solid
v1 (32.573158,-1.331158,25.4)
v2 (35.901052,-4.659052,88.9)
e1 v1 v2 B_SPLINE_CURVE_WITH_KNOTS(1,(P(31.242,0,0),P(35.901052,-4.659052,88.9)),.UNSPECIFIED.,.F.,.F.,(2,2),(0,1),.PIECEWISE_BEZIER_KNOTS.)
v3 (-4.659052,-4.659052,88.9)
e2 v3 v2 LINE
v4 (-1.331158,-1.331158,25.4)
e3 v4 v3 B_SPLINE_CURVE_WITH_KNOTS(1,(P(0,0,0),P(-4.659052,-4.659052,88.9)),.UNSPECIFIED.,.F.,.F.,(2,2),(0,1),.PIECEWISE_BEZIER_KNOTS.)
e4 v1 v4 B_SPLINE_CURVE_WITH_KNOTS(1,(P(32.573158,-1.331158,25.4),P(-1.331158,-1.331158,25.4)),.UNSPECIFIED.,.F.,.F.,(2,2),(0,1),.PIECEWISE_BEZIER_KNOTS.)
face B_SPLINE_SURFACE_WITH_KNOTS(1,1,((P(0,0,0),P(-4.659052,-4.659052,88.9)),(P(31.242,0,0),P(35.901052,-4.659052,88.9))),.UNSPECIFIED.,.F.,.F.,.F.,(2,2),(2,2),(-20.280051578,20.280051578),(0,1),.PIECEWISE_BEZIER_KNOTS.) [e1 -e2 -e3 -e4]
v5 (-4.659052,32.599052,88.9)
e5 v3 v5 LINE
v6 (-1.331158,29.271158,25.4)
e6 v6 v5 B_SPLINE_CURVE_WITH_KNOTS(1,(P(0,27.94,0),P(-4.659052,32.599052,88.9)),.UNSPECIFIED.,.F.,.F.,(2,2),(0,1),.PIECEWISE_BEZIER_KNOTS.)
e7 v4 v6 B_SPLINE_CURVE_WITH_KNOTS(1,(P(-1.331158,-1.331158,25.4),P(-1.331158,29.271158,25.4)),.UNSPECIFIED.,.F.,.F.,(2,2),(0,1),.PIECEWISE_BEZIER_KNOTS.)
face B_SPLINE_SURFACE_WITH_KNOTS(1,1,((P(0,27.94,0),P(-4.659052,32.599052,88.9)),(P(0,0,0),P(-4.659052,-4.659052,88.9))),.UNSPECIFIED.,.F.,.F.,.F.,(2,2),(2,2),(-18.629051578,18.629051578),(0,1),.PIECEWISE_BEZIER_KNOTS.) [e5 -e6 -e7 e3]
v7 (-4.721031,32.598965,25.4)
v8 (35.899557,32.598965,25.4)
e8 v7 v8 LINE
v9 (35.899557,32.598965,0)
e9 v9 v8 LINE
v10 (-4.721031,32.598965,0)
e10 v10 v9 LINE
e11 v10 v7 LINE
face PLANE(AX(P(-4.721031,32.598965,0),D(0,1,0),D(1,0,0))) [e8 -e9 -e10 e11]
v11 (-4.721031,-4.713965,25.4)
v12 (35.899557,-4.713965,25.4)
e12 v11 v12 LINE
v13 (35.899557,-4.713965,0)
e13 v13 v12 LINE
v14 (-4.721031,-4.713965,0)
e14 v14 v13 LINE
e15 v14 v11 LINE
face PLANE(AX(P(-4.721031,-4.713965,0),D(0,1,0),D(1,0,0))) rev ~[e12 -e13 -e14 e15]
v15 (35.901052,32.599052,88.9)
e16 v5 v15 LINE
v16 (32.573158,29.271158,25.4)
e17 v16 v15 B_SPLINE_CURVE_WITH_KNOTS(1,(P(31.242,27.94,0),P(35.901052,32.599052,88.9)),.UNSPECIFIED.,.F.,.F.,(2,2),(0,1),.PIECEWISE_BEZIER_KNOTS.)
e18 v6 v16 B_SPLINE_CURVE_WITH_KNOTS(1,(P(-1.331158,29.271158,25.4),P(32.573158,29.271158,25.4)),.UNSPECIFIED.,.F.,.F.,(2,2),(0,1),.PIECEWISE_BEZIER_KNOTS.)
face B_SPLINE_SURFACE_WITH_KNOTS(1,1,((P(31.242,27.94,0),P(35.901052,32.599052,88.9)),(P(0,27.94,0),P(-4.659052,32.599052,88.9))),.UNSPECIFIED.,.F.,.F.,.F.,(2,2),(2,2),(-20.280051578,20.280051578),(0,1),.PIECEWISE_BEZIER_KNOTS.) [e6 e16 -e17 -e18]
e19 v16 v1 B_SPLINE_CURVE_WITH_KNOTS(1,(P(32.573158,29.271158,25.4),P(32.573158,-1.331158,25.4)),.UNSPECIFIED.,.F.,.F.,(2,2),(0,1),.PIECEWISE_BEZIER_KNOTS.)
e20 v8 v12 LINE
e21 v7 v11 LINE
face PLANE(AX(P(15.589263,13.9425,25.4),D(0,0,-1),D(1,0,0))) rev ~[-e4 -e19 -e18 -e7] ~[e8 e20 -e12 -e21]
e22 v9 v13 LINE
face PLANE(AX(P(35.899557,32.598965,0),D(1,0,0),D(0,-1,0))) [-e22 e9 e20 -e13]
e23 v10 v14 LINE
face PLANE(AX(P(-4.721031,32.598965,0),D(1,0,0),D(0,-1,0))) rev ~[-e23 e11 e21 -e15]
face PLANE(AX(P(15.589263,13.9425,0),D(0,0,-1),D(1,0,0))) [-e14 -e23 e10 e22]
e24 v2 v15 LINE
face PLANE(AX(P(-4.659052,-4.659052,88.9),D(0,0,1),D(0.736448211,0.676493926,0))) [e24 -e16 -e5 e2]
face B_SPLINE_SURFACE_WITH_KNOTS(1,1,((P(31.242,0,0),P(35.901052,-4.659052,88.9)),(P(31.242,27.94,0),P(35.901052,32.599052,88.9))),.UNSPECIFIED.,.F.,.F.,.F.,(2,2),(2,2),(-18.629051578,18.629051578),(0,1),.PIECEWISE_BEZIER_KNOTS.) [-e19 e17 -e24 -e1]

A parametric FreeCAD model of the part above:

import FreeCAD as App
import Part
import Sketcher
Q = App.Units.Quantity

doc = App.newDocument("Part")
body = doc.addObject("PartDesign::Body", "Body")

# Sketch on XY plane
sketch1 = doc.addObject("Sketcher::SketchObject", "Sketch")
body.addObject(sketch1)
sketch1.AttachmentSupport = (doc.XY_Plane, [""])
sketch1.MapMode = "FlatFace"
sketch1.addGeometry([
    Part.LineSegment(App.Vector(0, 28, 0), App.Vector(0, 0, 0)),
    Part.LineSegment(App.Vector(0, 0, 0), App.Vector(31, 0, 0)),
    Part.LineSegment(App.Vector(31, 0, 0), App.Vector(31, 28, 0)),
    Part.LineSegment(App.Vector(31, 28, 0), App.Vector(0, 28, 0)),
], False)
sketch1.addConstraint([
    Sketcher.Constraint("Coincident", 0, 2, 1, 1),
    Sketcher.Constraint("Coincident", 1, 2, 2, 1),
    Sketcher.Constraint("Coincident", 2, 2, 3, 1),
    Sketcher.Constraint("Coincident", 3, 2, 0, 1),
    Sketcher.Constraint("Vertical", 0),
    Sketcher.Constraint("Horizontal", 1),
    Sketcher.Constraint("Vertical", 2),
    Sketcher.Constraint("Horizontal", 3),
    Sketcher.Constraint("Coincident", 0, 2, -1, 1),
    Sketcher.Constraint("DistanceY", 0, 2, 0, 1, Q("1.1 in")),
    Sketcher.Constraint("DistanceX", 1, 1, 1, 2, Q("1.23 in")),
])
pad1 = doc.addObject("PartDesign::Pad", "Pad")
body.addObject(pad1)
pad1.Profile = sketch1
pad1.Length = Q("3.5 in")
pad1.TaperAngle = 3

# Sketch on XY plane
sketch2 = doc.addObject("Sketcher::SketchObject", "Sketch001")
body.addObject(sketch2)
sketch2.AttachmentSupport = (doc.XY_Plane, [""])
sketch2.MapMode = "FlatFace"
sketch2.addGeometry([
    Part.LineSegment(App.Vector(-5, -5, 0), App.Vector(-5, 33, 0)),
    Part.LineSegment(App.Vector(-5, 33, 0), App.Vector(36, 33, 0)),
    Part.LineSegment(App.Vector(36, 33, 0), App.Vector(36, -5, 0)),
    Part.LineSegment(App.Vector(36, -5, 0), App.Vector(-5, -5, 0)),
], False)
sketch2.addConstraint([
    Sketcher.Constraint("Coincident", 0, 2, 1, 1),
    Sketcher.Constraint("Coincident", 1, 2, 2, 1),
    Sketcher.Constraint("Coincident", 2, 2, 3, 1),
    Sketcher.Constraint("Coincident", 3, 2, 0, 1),
    Sketcher.Constraint("Vertical", 0),
    Sketcher.Constraint("Horizontal", 1),
    Sketcher.Constraint("Vertical", 2),
    Sketcher.Constraint("Horizontal", 3),
    Sketcher.Constraint("DistanceY", 0, 1, 0, 2, Q("37.31293 mm")),
    Sketcher.Constraint("DistanceX", 1, 1, 1, 2, Q("40.620588 mm")),
    Sketcher.Constraint("DistanceX", 0, 2, -1, 1, Q("4.721031 mm")),
    Sketcher.Constraint("DistanceY", -1, 1, 0, 2, Q("32.598965 mm")),
])
pad2 = doc.addObject("PartDesign::Pad", "Pad001")
body.addObject(pad2)
pad2.Profile = sketch2
pad2.Length = Q("1 in")

doc.recompute()
